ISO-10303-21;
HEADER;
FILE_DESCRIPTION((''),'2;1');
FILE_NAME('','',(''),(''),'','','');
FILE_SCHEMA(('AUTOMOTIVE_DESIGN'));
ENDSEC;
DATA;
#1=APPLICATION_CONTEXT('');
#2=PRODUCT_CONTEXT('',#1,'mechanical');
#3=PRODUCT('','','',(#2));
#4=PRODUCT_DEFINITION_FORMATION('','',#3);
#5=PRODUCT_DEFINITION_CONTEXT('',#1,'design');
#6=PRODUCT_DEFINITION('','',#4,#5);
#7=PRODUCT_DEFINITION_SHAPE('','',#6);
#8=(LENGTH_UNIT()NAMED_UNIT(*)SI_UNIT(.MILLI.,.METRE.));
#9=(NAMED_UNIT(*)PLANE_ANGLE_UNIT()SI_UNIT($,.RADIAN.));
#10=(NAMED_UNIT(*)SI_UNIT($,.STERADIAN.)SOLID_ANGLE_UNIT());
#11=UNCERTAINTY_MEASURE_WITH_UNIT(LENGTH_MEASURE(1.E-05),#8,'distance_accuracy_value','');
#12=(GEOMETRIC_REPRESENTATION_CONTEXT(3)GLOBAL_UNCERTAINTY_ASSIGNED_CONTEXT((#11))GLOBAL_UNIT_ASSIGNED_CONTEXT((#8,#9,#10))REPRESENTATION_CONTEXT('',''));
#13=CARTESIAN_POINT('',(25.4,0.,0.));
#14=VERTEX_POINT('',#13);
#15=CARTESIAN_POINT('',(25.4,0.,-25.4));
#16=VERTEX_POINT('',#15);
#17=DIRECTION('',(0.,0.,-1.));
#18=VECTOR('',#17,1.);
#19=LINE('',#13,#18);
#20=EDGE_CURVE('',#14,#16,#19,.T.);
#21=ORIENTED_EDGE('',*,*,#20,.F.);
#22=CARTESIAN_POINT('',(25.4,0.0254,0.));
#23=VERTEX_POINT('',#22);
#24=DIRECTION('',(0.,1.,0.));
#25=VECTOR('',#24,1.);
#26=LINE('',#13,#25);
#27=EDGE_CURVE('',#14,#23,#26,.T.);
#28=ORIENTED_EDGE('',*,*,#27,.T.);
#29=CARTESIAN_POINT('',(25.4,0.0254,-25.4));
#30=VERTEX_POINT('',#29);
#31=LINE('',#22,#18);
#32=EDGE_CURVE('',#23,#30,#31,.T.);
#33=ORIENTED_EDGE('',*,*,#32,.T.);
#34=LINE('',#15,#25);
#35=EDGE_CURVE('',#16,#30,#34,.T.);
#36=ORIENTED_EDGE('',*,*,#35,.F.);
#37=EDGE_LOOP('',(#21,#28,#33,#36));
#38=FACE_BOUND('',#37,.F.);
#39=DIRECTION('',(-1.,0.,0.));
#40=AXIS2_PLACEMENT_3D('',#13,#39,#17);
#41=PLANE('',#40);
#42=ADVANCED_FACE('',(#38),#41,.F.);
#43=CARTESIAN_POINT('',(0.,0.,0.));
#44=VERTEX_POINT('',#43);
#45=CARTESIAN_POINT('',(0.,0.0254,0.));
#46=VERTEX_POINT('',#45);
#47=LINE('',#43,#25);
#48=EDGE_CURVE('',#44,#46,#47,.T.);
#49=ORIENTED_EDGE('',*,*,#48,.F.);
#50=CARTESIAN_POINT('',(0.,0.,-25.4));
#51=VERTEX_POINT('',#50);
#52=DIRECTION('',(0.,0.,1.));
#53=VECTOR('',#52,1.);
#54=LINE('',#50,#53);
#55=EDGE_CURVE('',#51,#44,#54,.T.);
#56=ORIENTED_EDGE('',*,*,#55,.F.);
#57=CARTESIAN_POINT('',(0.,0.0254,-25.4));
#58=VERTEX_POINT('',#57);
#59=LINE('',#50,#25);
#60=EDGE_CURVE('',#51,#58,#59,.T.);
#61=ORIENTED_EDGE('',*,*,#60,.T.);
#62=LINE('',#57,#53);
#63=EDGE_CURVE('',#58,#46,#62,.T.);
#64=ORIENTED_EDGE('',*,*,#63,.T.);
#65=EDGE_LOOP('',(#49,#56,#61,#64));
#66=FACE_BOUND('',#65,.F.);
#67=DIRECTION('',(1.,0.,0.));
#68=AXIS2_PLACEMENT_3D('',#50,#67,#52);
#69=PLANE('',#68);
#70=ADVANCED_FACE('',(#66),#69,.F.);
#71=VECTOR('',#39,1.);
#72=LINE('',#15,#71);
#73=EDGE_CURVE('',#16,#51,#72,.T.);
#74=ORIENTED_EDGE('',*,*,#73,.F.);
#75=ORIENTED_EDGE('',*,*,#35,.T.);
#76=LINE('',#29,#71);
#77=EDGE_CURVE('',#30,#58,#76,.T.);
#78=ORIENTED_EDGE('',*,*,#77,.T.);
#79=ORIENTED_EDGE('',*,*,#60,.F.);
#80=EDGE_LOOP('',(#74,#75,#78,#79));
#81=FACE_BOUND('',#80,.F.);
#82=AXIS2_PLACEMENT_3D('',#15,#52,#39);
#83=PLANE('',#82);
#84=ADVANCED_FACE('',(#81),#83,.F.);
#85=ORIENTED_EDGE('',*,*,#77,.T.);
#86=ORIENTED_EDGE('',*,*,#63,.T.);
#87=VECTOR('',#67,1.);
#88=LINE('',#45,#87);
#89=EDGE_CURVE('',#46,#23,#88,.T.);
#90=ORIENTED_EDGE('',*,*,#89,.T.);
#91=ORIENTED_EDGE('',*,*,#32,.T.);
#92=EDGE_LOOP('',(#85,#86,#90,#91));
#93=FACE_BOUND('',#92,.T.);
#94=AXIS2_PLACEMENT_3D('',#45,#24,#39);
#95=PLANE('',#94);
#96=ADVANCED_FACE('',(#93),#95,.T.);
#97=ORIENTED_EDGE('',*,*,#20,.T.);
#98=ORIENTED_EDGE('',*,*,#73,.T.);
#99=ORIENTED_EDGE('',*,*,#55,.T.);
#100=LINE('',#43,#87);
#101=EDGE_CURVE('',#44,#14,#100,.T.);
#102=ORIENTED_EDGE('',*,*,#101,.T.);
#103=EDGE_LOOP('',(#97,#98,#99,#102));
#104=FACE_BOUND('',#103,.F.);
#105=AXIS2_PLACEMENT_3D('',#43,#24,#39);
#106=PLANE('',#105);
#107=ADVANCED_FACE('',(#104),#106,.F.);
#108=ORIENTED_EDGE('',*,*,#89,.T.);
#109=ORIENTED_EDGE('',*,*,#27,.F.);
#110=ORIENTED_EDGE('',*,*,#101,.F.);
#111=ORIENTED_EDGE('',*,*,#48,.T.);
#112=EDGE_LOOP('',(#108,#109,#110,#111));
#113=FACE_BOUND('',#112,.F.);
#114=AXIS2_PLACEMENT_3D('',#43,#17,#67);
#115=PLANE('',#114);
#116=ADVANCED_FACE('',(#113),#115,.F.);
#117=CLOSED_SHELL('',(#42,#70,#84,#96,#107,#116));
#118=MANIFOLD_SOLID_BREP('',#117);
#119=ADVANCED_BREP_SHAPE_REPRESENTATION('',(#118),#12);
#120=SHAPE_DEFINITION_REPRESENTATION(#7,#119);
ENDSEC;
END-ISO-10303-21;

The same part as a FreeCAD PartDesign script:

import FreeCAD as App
import Part
import Sketcher
from FreeCAD import Vector
Q = App.Units.Quantity


def add_polygon(sketch, points):
    """Adds a closed chain of lines whose ends are joined by coincident constraints."""
    first, n = sketch.GeometryCount, len(points)
    for a, b in zip(points, points[1:] + points[:1]):
        sketch.addGeometry(Part.LineSegment(App.Vector(*a, 0), App.Vector(*b, 0)), False)
    for i in range(n):
        sketch.addConstraint(Sketcher.Constraint("Coincident", first + i, 2, first + (i + 1) % n, 1))

doc = App.newDocument("Part")
body = doc.addObject("PartDesign::Body", "Body")

# Sketch on XZ plane
sketch1 = body.newObject("Sketcher::SketchObject", "Sketch")
sketch1.AttachmentSupport = (doc.getObject("XZ_Plane"), [""])
sketch1.MapMode = "FlatFace"
add_polygon(sketch1, [(0, -25), (0, 0), (25, 0), (25, -25)])  # lines 0-3
sketch1.addConstraint(Sketcher.Constraint("Vertical", 0))
sketch1.addConstraint(Sketcher.Constraint("Horizontal", 1))
sketch1.addConstraint(Sketcher.Constraint("Vertical", 2))
sketch1.addConstraint(Sketcher.Constraint("Horizontal", 3))
sketch1.addConstraint(Sketcher.Constraint("Coincident", 0, 2, -1, 1))
sketch1.addConstraint(Sketcher.Constraint("Equal", 3, 0))
sketch1.addConstraint(Sketcher.Constraint("DistanceX", 1, 1, 1, 2, Q("1 in")))
pad1 = body.newObject("PartDesign::Pad", "Pad")
pad1.Profile = sketch1
pad1.Length = Q("0.001 in")
pad1.Reversed = True

doc.recompute()
